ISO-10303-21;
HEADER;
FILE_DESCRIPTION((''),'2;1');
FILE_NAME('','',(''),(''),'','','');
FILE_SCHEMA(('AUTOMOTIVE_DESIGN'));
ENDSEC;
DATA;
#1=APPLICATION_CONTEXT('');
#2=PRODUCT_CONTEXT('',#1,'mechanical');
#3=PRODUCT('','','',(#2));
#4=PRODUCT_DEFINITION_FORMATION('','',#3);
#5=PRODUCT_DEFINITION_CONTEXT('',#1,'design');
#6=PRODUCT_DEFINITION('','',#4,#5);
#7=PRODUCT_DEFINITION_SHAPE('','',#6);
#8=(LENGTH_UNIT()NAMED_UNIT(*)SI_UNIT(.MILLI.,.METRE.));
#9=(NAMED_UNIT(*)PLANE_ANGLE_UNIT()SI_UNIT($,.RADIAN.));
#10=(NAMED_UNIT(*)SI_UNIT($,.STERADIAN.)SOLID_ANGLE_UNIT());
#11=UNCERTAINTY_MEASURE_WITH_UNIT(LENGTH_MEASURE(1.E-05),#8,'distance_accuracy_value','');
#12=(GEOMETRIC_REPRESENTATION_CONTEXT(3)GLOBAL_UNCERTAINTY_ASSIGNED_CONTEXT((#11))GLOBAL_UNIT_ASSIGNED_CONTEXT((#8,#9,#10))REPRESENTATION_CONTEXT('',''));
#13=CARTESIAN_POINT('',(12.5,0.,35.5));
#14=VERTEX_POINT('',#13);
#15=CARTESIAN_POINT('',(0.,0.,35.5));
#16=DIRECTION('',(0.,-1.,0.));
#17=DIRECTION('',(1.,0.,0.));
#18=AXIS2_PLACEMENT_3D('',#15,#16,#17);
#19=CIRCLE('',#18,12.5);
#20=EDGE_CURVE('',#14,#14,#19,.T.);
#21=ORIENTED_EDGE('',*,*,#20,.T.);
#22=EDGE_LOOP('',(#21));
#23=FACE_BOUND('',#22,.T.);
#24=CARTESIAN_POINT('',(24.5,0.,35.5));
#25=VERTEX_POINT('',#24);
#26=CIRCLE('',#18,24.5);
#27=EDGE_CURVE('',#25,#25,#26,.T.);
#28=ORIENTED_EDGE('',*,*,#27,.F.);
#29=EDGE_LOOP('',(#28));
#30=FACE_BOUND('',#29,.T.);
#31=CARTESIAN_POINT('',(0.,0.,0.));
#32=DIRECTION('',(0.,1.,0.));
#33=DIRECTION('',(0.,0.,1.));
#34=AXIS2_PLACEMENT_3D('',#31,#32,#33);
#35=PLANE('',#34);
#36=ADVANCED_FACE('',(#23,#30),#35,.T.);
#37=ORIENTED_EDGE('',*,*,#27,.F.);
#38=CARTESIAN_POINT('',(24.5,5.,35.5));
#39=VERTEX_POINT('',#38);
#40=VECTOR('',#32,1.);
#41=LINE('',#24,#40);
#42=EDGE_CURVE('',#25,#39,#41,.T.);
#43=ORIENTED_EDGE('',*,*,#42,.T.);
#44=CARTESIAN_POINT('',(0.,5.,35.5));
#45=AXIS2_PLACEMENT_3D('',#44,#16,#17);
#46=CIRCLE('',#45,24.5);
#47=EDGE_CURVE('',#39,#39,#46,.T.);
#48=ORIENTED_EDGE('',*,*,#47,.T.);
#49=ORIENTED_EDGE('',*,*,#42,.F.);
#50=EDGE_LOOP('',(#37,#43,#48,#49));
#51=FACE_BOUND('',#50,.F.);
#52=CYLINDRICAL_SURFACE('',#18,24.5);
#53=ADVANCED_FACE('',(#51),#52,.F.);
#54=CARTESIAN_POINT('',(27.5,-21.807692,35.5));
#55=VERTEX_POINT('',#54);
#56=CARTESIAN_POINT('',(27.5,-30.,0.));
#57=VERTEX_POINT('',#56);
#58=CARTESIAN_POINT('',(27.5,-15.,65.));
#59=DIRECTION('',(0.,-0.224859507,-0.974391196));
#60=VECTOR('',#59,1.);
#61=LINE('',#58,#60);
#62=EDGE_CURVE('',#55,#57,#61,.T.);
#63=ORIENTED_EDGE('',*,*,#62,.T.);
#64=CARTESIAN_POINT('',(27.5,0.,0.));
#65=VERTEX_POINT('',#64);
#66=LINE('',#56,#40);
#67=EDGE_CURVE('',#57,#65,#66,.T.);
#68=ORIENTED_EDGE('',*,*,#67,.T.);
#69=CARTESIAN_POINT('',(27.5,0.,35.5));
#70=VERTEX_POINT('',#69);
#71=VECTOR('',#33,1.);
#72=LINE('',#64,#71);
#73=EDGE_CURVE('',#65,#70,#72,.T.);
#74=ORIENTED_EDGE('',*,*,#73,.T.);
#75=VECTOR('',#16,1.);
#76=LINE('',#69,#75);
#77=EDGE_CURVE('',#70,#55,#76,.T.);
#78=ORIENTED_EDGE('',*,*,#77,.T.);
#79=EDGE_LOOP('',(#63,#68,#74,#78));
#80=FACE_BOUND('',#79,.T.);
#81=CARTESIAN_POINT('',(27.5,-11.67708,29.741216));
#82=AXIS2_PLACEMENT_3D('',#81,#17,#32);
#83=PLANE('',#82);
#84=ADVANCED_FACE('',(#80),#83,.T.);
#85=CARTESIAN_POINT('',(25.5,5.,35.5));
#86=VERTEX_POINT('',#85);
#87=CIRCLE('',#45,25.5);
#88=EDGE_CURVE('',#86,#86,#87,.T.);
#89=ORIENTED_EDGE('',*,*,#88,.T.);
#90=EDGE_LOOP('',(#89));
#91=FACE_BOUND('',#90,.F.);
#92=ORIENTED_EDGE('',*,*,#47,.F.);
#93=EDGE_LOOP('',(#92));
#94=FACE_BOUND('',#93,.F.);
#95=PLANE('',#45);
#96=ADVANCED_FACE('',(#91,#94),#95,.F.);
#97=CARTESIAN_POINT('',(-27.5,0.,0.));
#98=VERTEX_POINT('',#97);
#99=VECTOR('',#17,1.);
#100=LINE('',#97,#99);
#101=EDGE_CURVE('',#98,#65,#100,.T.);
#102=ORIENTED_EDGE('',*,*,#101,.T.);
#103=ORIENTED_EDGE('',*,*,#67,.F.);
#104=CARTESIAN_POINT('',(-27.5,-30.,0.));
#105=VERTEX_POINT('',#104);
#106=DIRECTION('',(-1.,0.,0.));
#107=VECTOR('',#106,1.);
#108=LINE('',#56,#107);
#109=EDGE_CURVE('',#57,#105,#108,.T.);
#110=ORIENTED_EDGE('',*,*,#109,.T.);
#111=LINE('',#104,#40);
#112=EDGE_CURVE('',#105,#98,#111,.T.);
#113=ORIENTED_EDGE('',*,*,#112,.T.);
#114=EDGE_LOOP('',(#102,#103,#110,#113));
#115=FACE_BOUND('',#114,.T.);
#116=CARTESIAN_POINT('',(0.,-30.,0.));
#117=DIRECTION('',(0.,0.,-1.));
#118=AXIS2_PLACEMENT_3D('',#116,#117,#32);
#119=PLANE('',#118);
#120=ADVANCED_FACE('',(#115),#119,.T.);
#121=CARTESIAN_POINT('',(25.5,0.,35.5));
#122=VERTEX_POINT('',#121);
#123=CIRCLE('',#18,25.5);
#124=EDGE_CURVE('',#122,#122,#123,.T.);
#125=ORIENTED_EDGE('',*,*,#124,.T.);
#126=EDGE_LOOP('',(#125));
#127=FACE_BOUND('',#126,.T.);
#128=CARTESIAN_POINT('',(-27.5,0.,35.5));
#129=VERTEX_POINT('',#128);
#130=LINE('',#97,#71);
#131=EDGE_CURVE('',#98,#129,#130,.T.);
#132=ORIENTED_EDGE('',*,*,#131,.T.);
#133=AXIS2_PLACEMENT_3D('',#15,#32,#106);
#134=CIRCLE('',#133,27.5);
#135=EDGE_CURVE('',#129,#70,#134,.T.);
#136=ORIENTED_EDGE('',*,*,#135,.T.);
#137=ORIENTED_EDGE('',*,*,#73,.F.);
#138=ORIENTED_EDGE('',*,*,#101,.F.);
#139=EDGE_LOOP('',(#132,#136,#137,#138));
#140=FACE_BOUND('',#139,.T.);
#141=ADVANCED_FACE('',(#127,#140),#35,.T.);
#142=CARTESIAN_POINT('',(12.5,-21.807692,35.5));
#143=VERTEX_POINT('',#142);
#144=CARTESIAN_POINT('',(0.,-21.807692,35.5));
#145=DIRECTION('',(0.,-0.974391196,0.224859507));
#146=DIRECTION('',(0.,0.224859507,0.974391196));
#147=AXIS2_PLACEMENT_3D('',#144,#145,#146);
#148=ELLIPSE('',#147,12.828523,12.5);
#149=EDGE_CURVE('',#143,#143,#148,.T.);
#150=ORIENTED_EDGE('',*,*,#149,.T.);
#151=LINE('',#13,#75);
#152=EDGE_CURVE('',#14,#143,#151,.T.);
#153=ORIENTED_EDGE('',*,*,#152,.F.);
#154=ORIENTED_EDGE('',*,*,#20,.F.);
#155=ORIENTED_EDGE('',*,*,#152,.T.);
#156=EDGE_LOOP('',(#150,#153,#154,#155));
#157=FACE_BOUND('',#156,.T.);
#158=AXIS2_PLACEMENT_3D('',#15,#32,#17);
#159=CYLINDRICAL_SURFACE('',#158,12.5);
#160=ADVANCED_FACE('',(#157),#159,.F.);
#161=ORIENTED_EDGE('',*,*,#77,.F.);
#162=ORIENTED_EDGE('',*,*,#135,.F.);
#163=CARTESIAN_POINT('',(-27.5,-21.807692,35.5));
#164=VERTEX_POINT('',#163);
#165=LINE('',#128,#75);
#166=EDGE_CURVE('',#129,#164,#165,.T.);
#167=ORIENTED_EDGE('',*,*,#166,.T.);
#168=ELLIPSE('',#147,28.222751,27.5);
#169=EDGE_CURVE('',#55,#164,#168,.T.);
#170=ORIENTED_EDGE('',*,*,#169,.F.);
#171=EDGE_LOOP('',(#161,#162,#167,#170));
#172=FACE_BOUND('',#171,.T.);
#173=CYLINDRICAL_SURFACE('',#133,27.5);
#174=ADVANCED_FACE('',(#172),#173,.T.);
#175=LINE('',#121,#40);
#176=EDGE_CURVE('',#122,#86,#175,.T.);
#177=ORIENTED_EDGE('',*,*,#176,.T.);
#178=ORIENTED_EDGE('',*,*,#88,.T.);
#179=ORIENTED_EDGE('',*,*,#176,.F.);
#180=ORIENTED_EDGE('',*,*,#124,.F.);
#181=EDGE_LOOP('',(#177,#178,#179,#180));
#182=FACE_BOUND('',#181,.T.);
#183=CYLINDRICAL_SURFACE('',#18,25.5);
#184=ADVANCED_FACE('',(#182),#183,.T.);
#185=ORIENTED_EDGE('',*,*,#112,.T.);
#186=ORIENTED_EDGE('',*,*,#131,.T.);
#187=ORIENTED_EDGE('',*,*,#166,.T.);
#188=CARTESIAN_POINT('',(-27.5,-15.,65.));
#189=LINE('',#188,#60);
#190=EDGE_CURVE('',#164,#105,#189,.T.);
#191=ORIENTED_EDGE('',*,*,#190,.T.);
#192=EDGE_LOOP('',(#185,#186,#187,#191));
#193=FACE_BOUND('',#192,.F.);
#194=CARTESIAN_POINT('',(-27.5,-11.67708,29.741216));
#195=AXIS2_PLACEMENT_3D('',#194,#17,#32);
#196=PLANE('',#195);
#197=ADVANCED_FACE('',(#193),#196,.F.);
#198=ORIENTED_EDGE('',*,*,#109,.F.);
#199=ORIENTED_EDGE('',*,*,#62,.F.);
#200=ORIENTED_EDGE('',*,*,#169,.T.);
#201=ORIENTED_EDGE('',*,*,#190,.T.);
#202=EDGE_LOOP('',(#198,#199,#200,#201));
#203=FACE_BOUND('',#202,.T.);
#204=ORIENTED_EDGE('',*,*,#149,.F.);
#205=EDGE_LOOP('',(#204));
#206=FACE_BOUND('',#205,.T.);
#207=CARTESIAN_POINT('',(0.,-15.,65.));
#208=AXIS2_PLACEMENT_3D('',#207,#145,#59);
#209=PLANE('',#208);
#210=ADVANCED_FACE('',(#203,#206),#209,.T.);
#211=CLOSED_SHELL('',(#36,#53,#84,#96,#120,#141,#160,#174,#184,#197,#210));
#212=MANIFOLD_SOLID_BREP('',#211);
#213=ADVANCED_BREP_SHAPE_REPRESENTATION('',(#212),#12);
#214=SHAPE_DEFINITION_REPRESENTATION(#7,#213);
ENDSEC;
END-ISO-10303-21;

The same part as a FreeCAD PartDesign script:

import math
import FreeCAD as App
import Part
import Sketcher
from FreeCAD import Vector
Q = App.Units.Quantity

doc = App.newDocument("Part")
body = doc.addObject("PartDesign::Body", "Body")

# Sketch on XZ plane
sketch1 = body.newObject("Sketcher::SketchObject", "Sketch")
sketch1.AttachmentSupport = (doc.getObject("XZ_Plane"), [""])
sketch1.MapMode = "FlatFace"
sketch1.addGeometry([
    Part.Circle(Vector(0, 36, 0), Vector(0, 0, 1), 26),
    Part.Circle(Vector(0, 36, 0), Vector(0, 0, 1), 24),
], False)
sketch1.addConstraint([
    Sketcher.Constraint("Coincident", 1, 3, 0, 3),
    Sketcher.Constraint("PointOnObject", 0, 3, -2),
    Sketcher.Constraint("Diameter", 0, Q("51 mm")),
    Sketcher.Constraint("Diameter", 1, Q("49 mm")),
    Sketcher.Constraint("DistanceY", -1, 1, 0, 3, Q("35.5 mm")),
])
pad1 = body.newObject("PartDesign::Pad", "Pad")
pad1.Profile = sketch1
pad1.Length = 5
pad1.Reversed = True

# Sketch on YZ plane
sketch2 = body.newObject("Sketcher::SketchObject", "Sketch001")
sketch2.AttachmentSupport = (doc.getObject("YZ_Plane"), [""])
sketch2.MapMode = "FlatFace"
sketch2.addGeometry([
    Part.LineSegment(Vector(-30, 0, 0), Vector(0, 0, 0)),
    Part.LineSegment(Vector(0, 0, 0), Vector(0, 65, 0)),
    Part.LineSegment(Vector(0, 65, 0), Vector(-15, 65, 0)),
    Part.LineSegment(Vector(-15, 65, 0), Vector(-30, 0, 0)),
], False)
sketch2.addConstraint([
    Sketcher.Constraint("Coincident", 0, 2, 1, 1),
    Sketcher.Constraint("Coincident", 1, 2, 2, 1),
    Sketcher.Constraint("Coincident", 2, 2, 3, 1),
    Sketcher.Constraint("Coincident", 3, 2, 0, 1),
    Sketcher.Constraint("Horizontal", 0),
    Sketcher.Constraint("Vertical", 1),
    Sketcher.Constraint("Horizontal", 2),
    Sketcher.Constraint("Coincident", 0, 2, -1, 1),
    Sketcher.Constraint("DistanceX", 0, 1, 0, 2, Q("30 mm")),
    Sketcher.Constraint("DistanceX", 2, 2, 2, 1, Q("15 mm")),
    Sketcher.Constraint("DistanceY", 1, 1, 1, 2, Q("65 mm")),
])
pad2 = body.newObject("PartDesign::Pad", "Pad001")
pad2.Profile = sketch2
pad2.Length = 55
pad2.Midplane = True

# Sketch on XZ plane
sketch3 = body.newObject("Sketcher::SketchObject", "Sketch002")
sketch3.AttachmentSupport = (doc.getObject("XZ_Plane"), [""])
sketch3.MapMode = "FlatFace"
sketch3.addGeometry([
    Part.ArcOfCircle(Part.Circle(Vector(0, 36, 0), Vector(0, 0, 1), 28), math.radians(0), math.radians(180)),  # 0
    Part.LineSegment(Vector(28, 36, 0), Vector(32, 36, 0)),  # 1
    Part.LineSegment(Vector(32, 36, 0), Vector(32, 70, 0)),  # 2
    Part.LineSegment(Vector(32, 70, 0), Vector(-32, 70, 0)),  # 3
    Part.LineSegment(Vector(-32, 70, 0), Vector(-32, 36, 0)),  # 4
    Part.LineSegment(Vector(-32, 36, 0), Vector(-28, 36, 0)),  # 5
    Part.Circle(Vector(0, 36, 0), Vector(0, 0, 1), 12),  # 6
], False)
sketch3.addConstraint([
    Sketcher.Constraint("Coincident", 0, 1, 1, 1),
    Sketcher.Constraint("Coincident", 1, 2, 2, 1),
    Sketcher.Constraint("Coincident", 2, 2, 3, 1),
    Sketcher.Constraint("Coincident", 3, 2, 4, 1),
    Sketcher.Constraint("Coincident", 4, 2, 5, 1),
    Sketcher.Constraint("Coincident", 5, 2, 0, 2),
    Sketcher.Constraint("Horizontal", 1),
    Sketcher.Constraint("Vertical", 2),
    Sketcher.Constraint("Horizontal", 3),
    Sketcher.Constraint("Vertical", 4),
    Sketcher.Constraint("Horizontal", 5),
    Sketcher.Constraint("Coincident", 6, 3, 0, 3),
    Sketcher.Constraint("Symmetric", 1, 2, 4, 2, -2),
    Sketcher.Constraint("PointOnObject", 0, 3, -2),
    Sketcher.Constraint("Horizontal", 6, 3, 0, 1),
    Sketcher.Constraint("Diameter", 6, Q("25 mm")),
    Sketcher.Constraint("Radius", 0, Q("27.5 mm")),
    Sketcher.Constraint("DistanceX", 1, 1, 1, 2, Q("5 mm")),
    Sketcher.Constraint("DistanceY", 2, 1, 2, 2, Q("34.5 mm")),
    Sketcher.Constraint("DistanceY", -1, 1, 2, 2, Q("70 mm")),
])
pocket1 = body.newObject("PartDesign::Pocket", "Pocket")
pocket1.Profile = sketch3
pocket1.Type = "ThroughAll"
pocket1.Reversed = True

doc.recompute()
